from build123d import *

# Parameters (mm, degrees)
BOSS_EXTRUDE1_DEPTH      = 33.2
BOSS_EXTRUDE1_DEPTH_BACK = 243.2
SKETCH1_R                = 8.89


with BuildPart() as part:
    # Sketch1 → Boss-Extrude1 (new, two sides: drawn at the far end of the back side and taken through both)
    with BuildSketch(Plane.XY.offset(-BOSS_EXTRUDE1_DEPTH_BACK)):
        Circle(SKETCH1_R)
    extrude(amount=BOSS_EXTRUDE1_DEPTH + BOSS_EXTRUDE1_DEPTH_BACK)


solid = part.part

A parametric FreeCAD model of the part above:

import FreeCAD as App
import Part
import Sketcher

V = App.Vector

doc = App.newDocument("Part")
body = doc.addObject("PartDesign::Body", "Body")

sketch1 = body.newObject("Sketcher::SketchObject", "Sketch")
sketch1.AttachmentSupport = (doc.getObject("XY_Plane"), [""])
sketch1.MapMode = "FlatFace"
sketch1.addGeometry(Part.Circle(V(0, 0, 0), V(0, 0, 1), 9), False)
sketch1.addConstraint([
    Sketcher.Constraint("Coincident", 0, 3, -1, 1),
    Sketcher.Constraint("Diameter", 0, 17.78),
])
pad1 = body.newObject("PartDesign::Pad", "Pad")
pad1.Profile = sketch1
pad1.Type = "TwoLengths"
pad1.Length = 33.2
pad1.Length2 = 243.2

doc.recompute()
